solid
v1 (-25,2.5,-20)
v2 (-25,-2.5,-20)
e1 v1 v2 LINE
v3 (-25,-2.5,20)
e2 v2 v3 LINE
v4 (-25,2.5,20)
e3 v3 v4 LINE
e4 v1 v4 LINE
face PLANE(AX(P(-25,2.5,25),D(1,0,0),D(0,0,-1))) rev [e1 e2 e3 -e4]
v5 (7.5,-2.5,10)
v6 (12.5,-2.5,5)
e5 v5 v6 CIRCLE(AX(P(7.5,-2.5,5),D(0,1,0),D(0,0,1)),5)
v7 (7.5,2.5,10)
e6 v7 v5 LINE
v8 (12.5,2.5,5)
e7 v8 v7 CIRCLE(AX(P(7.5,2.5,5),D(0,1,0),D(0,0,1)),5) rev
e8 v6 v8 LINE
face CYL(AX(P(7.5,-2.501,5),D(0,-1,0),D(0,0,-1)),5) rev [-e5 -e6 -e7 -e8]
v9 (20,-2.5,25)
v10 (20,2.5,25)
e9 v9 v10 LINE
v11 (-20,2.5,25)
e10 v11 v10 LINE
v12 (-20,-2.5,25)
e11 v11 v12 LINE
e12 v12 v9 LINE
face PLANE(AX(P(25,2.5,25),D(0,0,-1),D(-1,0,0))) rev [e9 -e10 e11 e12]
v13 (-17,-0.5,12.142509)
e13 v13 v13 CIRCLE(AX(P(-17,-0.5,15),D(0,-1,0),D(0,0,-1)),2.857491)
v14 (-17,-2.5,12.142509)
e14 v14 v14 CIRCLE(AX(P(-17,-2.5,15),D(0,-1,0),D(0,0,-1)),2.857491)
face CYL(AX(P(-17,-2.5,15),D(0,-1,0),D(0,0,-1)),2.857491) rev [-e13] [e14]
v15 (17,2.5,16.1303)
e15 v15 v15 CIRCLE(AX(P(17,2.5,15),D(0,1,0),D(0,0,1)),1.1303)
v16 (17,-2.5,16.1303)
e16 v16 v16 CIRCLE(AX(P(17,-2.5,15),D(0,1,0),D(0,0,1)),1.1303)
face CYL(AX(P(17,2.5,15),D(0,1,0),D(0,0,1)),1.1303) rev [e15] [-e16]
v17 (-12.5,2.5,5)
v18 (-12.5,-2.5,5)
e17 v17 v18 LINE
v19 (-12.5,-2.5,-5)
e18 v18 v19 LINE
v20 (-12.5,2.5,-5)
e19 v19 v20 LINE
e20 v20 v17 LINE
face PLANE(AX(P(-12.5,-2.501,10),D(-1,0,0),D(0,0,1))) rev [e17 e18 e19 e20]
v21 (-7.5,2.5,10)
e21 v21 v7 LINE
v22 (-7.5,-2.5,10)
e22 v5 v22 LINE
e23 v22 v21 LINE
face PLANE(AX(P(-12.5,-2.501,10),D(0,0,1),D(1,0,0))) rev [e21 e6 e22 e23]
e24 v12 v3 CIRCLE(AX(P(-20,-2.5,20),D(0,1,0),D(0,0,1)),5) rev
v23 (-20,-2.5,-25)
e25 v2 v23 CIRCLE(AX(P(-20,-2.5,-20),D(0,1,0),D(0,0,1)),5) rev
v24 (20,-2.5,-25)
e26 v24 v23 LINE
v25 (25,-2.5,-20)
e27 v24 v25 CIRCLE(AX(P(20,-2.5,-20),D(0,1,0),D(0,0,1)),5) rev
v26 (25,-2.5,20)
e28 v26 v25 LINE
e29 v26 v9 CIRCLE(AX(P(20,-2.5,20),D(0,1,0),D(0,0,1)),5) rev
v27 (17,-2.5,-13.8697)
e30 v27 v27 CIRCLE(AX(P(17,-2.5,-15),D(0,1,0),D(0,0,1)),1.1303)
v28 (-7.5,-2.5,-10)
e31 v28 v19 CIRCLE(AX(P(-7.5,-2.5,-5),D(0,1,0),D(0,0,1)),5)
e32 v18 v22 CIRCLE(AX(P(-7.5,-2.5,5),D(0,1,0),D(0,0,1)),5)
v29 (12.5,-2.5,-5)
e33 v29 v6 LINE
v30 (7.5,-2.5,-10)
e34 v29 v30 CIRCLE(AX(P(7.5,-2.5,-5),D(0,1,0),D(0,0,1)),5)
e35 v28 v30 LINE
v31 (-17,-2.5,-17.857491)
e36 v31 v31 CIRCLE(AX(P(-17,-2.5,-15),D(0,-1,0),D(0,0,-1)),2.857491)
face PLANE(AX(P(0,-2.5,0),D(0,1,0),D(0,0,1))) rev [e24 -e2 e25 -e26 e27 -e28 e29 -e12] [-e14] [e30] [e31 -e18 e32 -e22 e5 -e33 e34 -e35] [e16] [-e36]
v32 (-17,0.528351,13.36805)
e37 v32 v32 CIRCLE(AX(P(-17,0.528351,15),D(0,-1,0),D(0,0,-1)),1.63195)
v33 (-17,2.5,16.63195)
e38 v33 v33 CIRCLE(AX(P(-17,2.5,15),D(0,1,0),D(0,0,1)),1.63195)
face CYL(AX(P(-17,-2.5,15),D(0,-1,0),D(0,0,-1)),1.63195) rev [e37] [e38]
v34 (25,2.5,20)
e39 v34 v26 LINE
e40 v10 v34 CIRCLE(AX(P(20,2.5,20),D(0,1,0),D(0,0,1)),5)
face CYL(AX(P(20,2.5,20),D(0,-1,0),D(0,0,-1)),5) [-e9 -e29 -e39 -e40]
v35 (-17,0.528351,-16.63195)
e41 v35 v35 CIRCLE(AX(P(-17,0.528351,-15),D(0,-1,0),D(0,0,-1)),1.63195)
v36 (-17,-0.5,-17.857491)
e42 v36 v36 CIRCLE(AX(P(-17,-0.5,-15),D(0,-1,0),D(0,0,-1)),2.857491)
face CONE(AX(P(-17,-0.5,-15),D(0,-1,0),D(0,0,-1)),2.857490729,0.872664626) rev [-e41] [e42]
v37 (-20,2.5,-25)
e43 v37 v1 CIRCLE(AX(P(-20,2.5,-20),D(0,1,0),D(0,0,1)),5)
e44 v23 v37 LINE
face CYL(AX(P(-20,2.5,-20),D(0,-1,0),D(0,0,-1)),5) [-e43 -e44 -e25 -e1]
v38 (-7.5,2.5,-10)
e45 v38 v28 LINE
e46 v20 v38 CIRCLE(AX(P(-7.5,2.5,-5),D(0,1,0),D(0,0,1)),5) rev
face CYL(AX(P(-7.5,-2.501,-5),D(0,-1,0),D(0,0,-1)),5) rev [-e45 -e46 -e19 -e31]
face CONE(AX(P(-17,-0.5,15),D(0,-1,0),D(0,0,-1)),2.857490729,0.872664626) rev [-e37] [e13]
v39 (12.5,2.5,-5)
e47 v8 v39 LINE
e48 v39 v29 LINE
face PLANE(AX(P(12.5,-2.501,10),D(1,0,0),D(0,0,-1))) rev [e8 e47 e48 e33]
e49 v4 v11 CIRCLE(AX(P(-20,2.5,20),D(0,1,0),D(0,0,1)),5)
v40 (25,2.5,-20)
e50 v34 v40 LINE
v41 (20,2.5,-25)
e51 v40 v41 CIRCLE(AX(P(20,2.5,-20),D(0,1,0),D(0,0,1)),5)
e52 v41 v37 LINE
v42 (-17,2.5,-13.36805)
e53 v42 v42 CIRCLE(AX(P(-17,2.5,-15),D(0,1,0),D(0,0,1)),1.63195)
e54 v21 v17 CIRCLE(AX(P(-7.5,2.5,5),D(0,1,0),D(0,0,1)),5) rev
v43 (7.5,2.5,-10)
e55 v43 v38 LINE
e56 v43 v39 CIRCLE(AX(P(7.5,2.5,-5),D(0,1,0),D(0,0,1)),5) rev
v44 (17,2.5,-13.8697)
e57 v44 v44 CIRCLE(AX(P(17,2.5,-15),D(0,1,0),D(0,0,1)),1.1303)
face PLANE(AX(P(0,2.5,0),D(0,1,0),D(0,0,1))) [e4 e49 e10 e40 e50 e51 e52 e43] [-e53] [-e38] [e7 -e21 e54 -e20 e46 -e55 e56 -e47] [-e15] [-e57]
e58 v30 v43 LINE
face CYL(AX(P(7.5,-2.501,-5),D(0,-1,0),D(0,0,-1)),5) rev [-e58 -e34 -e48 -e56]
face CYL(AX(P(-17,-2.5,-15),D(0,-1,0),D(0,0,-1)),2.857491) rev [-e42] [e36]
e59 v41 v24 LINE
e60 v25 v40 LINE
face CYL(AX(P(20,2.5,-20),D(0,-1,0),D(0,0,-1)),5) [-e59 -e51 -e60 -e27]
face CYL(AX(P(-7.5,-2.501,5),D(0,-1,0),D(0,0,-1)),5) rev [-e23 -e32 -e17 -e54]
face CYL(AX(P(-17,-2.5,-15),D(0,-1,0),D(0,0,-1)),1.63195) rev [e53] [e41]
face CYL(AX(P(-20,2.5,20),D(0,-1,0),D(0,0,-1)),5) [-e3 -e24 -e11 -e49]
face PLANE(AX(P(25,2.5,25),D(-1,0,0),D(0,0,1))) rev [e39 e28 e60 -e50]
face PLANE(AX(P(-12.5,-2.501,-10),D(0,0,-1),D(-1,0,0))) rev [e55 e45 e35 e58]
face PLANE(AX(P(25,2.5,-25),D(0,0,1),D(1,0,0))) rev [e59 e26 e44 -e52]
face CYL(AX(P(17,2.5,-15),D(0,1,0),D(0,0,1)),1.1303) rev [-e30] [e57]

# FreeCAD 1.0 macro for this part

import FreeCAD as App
import Part
import Sketcher
Q = App.Units.Quantity


def edges_at(feature, points):
    """Names of the edges that pass closest to the given points."""
    edges = feature.Shape.Edges
    near = lambda p: min(range(len(edges)), key=lambda i: edges[i].distToShape(Part.Vertex(*p))[0])
    return sorted({f"Edge{near(p) + 1}" for p in points})

doc = App.newDocument("Part")
body = doc.addObject("PartDesign::Body", "Body")

# Sketch on XZ plane
sketch1 = doc.addObject("Sketcher::SketchObject", "Sketch")
body.addObject(sketch1)
sketch1.AttachmentSupport = (doc.XZ_Plane, [""])
sketch1.MapMode = "FlatFace"
sketch1.addGeometry(Part.LineSegment(App.Vector(-25, -25, 0), App.Vector(-25, 25, 0)), False)
sketch1.addGeometry(Part.LineSegment(App.Vector(-25, 25, 0), App.Vector(25, 25, 0)), False)
sketch1.addGeometry(Part.LineSegment(App.Vector(25, 25, 0), App.Vector(25, -25, 0)), False)
sketch1.addGeometry(Part.LineSegment(App.Vector(25, -25, 0), App.Vector(-25, -25, 0)), False)
sketch1.addConstraint(Sketcher.Constraint("Coincident", 0, 2, 1, 1))
sketch1.addConstraint(Sketcher.Constraint("Coincident", 1, 2, 2, 1))
sketch1.addConstraint(Sketcher.Constraint("Coincident", 2, 2, 3, 1))
sketch1.addConstraint(Sketcher.Constraint("Coincident", 3, 2, 0, 1))
sketch1.addConstraint(Sketcher.Constraint("Vertical", 0))
sketch1.addConstraint(Sketcher.Constraint("Horizontal", 1))
sketch1.addConstraint(Sketcher.Constraint("Vertical", 2))
sketch1.addConstraint(Sketcher.Constraint("Horizontal", 3))
sketch1.addConstraint(Sketcher.Constraint("Symmetric", 0, 2, 2, 2, -1, 1))
sketch1.addConstraint(Sketcher.Constraint("Equal", 3, 0))
sketch1.addConstraint(Sketcher.Constraint("DistanceX", 1, 1, 1, 2, 50.0))
pad1 = doc.addObject("PartDesign::Pad", "Pad")
body.addObject(pad1)
pad1.Profile = sketch1
pad1.Length = 5
pad1.Midplane = True

# Sketch on XZ plane
sketch2 = doc.addObject("Sketcher::SketchObject", "Sketch001")
body.addObject(sketch2)
sketch2.AttachmentSupport = (doc.XZ_Plane, [""])
sketch2.MapMode = "FlatFace"
sketch2.AttachmentOffset = App.Placement(App.Vector(0, 0, -2.5), App.Rotation())
sketch2.addGeometry(Part.Circle(App.Vector(17, -15, 0), App.Vector(0, 0, 1), 1.1303), False)
sketch2.addGeometry(Part.Circle(App.Vector(17, 15, 0), App.Vector(0, 0, 1), 1.1303), False)
sketch2.addConstraint(Sketcher.Constraint("Equal", 0, 1))
sketch2.addConstraint(Sketcher.Constraint("Symmetric", 0, 3, 1, 3, -1))
sketch2.addConstraint(Sketcher.Constraint("DistanceX", -1, 1, 0, 3, 17.0))
sketch2.addConstraint(Sketcher.Constraint("DistanceY", 0, 3, -1, 1, 15.0))
sketch2.addConstraint(Sketcher.Constraint("Diameter", 0, 2.2606))
doc.recompute()
hole = doc.addObject("PartDesign::Hole", "Hole")
body.addObject(hole)
hole.Profile = sketch2
hole.ThreadType = "None"
hole.Diameter = 2.2606
hole.DepthType = "Dimension"
hole.Depth = 5
hole.DrillPoint = "Flat"
hole.Reversed = True

# Sketch on YZ plane
sketch3 = doc.addObject("Sketcher::SketchObject", "Sketch002")
body.addObject(sketch3)
sketch3.AttachmentSupport = (doc.YZ_Plane, [""])
sketch3.MapMode = "FlatFace"
sketch3.AttachmentOffset = App.Placement(App.Vector(0, 0, -17), App.Rotation())
sketch3.addGeometry(Part.LineSegment(App.Vector(2.5, -15, 0), App.Vector(-2.5, -15, 0)), False)
sketch3.addGeometry(Part.LineSegment(App.Vector(-2.5, -15, 0), App.Vector(-2.5, -17.857491, 0)), False)
sketch3.addGeometry(Part.LineSegment(App.Vector(-2.5, -17.857491, 0), App.Vector(-0.5, -17.857491, 0)), False)
sketch3.addGeometry(Part.LineSegment(App.Vector(-0.5, -17.857491, 0), App.Vector(0.528351, -16.63195, 0)), False)
sketch3.addGeometry(Part.LineSegment(App.Vector(0.528351, -16.63195, 0), App.Vector(2.5, -16.63195, 0)), False)
sketch3.addGeometry(Part.LineSegment(App.Vector(2.5, -16.63195, 0), App.Vector(2.5, -15, 0)), False)
sketch3.addGeometry(Part.LineSegment(App.Vector(-2.5, -15, 0), App.Vector(2.5, -15, 0)), True)  # axis
sketch3.addConstraint(Sketcher.Constraint("Coincident", 0, 2, 1, 1))
sketch3.addConstraint(Sketcher.Constraint("Coincident", 1, 2, 2, 1))
sketch3.addConstraint(Sketcher.Constraint("Coincident", 2, 2, 3, 1))
sketch3.addConstraint(Sketcher.Constraint("Coincident", 3, 2, 4, 1))
sketch3.addConstraint(Sketcher.Constraint("Coincident", 4, 2, 5, 1))
sketch3.addConstraint(Sketcher.Constraint("Coincident", 5, 2, 0, 1))
sketch3.addConstraint(Sketcher.Constraint("Horizontal", 0))
sketch3.addConstraint(Sketcher.Constraint("Vertical", 1))
sketch3.addConstraint(Sketcher.Constraint("Horizontal", 2))
sketch3.addConstraint(Sketcher.Constraint("Horizontal", 4))
sketch3.addConstraint(Sketcher.Constraint("Vertical", 5))
sketch3.addConstraint(Sketcher.Constraint("Horizontal", 6))
sketch3.addConstraint(Sketcher.Constraint("Coincident", 6, 1, 0, 2))
sketch3.addConstraint(Sketcher.Constraint("Vertical", 4, 2, 6, 2))
sketch3.addConstraint(Sketcher.Constraint("DistanceX", 0, 2, 0, 1, 5.0))
sketch3.addConstraint(Sketcher.Constraint("DistanceX", 2, 1, 2, 2, 2.0))
sketch3.addConstraint(Sketcher.Constraint("Angle", 3, Q("50 deg")))
sketch3.addConstraint(Sketcher.Constraint("DistanceY", 0, 2, -1, 1, 15.0))
sketch3.addConstraint(Sketcher.Constraint("DistanceX", 0, 2, -1, 1, 2.5))
sketch3.addConstraint(Sketcher.Constraint("DistanceX", 4, 1, 4, 2, 1.971649))
sketch3.addConstraint(Sketcher.Constraint("DistanceY", 1, 2, 1, 1, 2.857491))
groove = doc.addObject("PartDesign::Groove", "Groove")
body.addObject(groove)
groove.Profile = sketch3
groove.ReferenceAxis = (sketch3, ["Axis0"])
groove.Angle = 360
doc.recompute()

linearpattern = doc.addObject("PartDesign::LinearPattern", "LinearPattern")
body.addObject(linearpattern)
linearpattern.Originals = [groove]
linearpattern.Direction = (doc.Z_Axis, [""])
linearpattern.Mode = "offset"
linearpattern.Offset = 30
linearpattern.Occurrences = 2
body.Tip = linearpattern

# Sketch on XZ plane
sketch4 = doc.addObject("Sketcher::SketchObject", "Sketch003")
body.addObject(sketch4)
sketch4.AttachmentSupport = (doc.XZ_Plane, [""])
sketch4.MapMode = "FlatFace"
sketch4.AttachmentOffset = App.Placement(App.Vector(0, 0, -2.5), App.Rotation())
sketch4.addGeometry(Part.LineSegment(App.Vector(-12.5, -10, 0), App.Vector(-12.5, 10, 0)), False)
sketch4.addGeometry(Part.LineSegment(App.Vector(-12.5, 10, 0), App.Vector(12.5, 10, 0)), False)
sketch4.addGeometry(Part.LineSegment(App.Vector(12.5, 10, 0), App.Vector(12.5, -10, 0)), False)
sketch4.addGeometry(Part.LineSegment(App.Vector(12.5, -10, 0), App.Vector(-12.5, -10, 0)), False)
sketch4.addConstraint(Sketcher.Constraint("Coincident", 0, 2, 1, 1))
sketch4.addConstraint(Sketcher.Constraint("Coincident", 1, 2, 2, 1))
sketch4.addConstraint(Sketcher.Constraint("Coincident", 2, 2, 3, 1))
sketch4.addConstraint(Sketcher.Constraint("Coincident", 3, 2, 0, 1))
sketch4.addConstraint(Sketcher.Constraint("Vertical", 0))
sketch4.addConstraint(Sketcher.Constraint("Horizontal", 1))
sketch4.addConstraint(Sketcher.Constraint("Vertical", 2))
sketch4.addConstraint(Sketcher.Constraint("Horizontal", 3))
sketch4.addConstraint(Sketcher.Constraint("Symmetric", 0, 2, 2, 2, -1, 1))
sketch4.addConstraint(Sketcher.Constraint("DistanceX", 1, 1, 1, 2, 25.0))
sketch4.addConstraint(Sketcher.Constraint("DistanceY", 0, 1, 0, 2, 20.0))
pocket1 = doc.addObject("PartDesign::Pocket", "Pocket")
body.addObject(pocket1)
pocket1.Profile = sketch4
pocket1.Type = "UpToFirst"
pocket1.Reversed = True
doc.recompute()

fillet = doc.addObject("PartDesign::Fillet", "Fillet")
body.addObject(fillet)
fillet.Base = (pocket1, edges_at(pocket1, [
    (12.5, 0, -10),
    (12.5, 0, 10),
    (-12.5, 0, 10),
    (-12.5, 0, -10),
    (-25, 0, -25),
    (25, 0, -25),
    (25, 0, 25),
    (-25, 0, 25),
]))
fillet.Radius = 5

doc.recompute()
